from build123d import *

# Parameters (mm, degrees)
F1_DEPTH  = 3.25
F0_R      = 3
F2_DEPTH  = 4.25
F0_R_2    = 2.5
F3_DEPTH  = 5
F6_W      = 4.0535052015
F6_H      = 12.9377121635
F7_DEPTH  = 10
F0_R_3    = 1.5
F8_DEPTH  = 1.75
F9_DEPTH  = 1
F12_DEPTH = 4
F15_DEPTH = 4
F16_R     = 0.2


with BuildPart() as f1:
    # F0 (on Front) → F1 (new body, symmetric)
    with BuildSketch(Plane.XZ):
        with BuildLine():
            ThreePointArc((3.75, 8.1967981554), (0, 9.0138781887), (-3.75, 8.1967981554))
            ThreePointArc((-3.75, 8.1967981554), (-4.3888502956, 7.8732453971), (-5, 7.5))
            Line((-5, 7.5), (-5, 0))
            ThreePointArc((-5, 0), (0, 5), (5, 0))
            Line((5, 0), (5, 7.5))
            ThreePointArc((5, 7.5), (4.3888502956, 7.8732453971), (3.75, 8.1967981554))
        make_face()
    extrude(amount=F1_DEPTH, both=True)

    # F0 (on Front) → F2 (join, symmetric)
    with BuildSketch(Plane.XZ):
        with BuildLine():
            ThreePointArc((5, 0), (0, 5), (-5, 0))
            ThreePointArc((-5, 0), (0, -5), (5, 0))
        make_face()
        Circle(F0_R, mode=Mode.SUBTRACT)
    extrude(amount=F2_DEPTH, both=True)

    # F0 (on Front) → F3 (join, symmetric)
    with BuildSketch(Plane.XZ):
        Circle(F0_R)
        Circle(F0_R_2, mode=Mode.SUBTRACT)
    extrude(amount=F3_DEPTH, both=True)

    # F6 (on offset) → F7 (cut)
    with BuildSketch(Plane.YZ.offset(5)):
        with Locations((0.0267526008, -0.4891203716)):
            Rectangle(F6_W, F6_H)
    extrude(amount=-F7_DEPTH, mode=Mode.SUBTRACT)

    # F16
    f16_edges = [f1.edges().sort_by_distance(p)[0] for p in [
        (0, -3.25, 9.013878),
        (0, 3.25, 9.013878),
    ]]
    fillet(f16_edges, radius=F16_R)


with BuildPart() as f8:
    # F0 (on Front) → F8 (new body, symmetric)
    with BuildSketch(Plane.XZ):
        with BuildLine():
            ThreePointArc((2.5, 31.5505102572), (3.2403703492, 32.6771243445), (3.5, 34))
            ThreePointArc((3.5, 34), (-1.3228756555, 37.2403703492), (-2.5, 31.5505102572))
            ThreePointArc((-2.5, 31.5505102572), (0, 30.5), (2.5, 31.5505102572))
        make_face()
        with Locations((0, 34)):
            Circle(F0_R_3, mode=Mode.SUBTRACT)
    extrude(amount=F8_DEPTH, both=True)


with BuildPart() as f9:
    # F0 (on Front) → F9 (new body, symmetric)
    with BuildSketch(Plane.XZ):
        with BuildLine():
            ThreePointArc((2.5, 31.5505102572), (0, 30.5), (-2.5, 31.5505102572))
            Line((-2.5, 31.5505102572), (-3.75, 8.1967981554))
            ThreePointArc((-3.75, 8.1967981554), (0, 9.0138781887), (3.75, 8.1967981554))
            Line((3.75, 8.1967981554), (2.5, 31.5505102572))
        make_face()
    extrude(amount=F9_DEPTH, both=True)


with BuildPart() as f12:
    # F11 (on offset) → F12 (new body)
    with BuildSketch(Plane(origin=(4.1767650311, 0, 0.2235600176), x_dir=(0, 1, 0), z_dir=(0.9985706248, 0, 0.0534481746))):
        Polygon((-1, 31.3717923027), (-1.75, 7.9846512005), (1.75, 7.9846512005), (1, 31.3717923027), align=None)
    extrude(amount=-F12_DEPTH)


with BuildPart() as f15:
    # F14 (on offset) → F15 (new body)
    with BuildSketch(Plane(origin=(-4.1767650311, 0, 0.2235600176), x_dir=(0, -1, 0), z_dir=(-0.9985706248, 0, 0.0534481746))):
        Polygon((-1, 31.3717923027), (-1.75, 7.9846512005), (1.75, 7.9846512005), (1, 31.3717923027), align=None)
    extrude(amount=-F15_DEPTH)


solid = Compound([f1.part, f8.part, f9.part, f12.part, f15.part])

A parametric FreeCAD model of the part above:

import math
import FreeCAD as App
import Part
import Sketcher

V = App.Vector


def edges_at(feature, points):
    """Names of the edges that pass closest to the given points."""
    edges = feature.Shape.Edges
    near = lambda p: min(range(len(edges)), key=lambda i: edges[i].distToShape(Part.Vertex(*p))[0])
    return sorted({f"Edge{near(p) + 1}" for p in points})


def add_polygon(sketch, points):
    """Adds a closed chain of lines whose ends are joined by coincident constraints."""
    first, n = sketch.GeometryCount, len(points)
    for a, b in zip(points, points[1:] + points[:1]):
        sketch.addGeometry(Part.LineSegment(App.Vector(*a, 0), App.Vector(*b, 0)), False)
    for i in range(n):
        sketch.addConstraint(Sketcher.Constraint("Coincident", first + i, 2, first + (i + 1) % n, 1))

doc = App.newDocument("Part")
params = doc.addObject("Spreadsheet::Sheet", "Params")
for row, (alias, value) in enumerate([
    ("sketch1_radius", "5 mm"),
    ("sketch1_height", "7.5 mm"),
    ("pad1_length", "6.5 mm"),
    ("sketch2_diameter", "10 mm"),
    ("sketch2_diameter2", "6 mm"),
    ("pad2_length", "8.5 mm"),
    ("sketch3_diameter", "6 mm"),
    ("sketch3_diameter2", "5 mm"),
    ("pad3_length", "10 mm"),
    ("pocket1_length", "10 mm"),
    ("fillet_radius", "0.2 mm"),
    ("sketch5_diameter", "3 mm"),
    ("sketch5_radius", "3.5 mm"),
    ("pad4_length", "3.5 mm"),
    ("sketch6_radius", "3.5 mm"),
    ("pad5_length", "2 mm"),
    ("sketch7_width", "2 mm"),
    ("sketch7_width2", "3.5 mm"),
    ("pad6_length", "4 mm"),
    ("sketch8_width", "2 mm"),
    ("sketch8_width2", "3.5 mm"),
    ("pad7_length", "4 mm"),
], start=1):
    params.set(f"A{row}", alias)
    params.set(f"B{row}", "=" + value)
    params.setAlias(f"B{row}", alias)

body = doc.addObject("PartDesign::Body", "Body")

sketch1 = body.newObject("Sketcher::SketchObject", "Sketch")
sketch1.AttachmentSupport = (doc.getObject("XZ_Plane"), [""])
sketch1.MapMode = "FlatFace"
sketch1.addGeometry([
    Part.ArcOfCircle(Part.Circle(V(0, 0, 0), V(0, 0, 1), 9), math.radians(65), math.radians(115)),
    Part.ArcOfCircle(Part.Circle(V(0, 0, 0), V(0, 0, 1), 9), math.radians(114.58), math.radians(123.69)),
    Part.LineSegment(V(-5, 7.5, 0), V(-5, 0, 0)),
    Part.ArcOfCircle(Part.Circle(V(0, 0, 0), V(0, 0, 1), 5), math.radians(0), math.radians(180)),
    Part.LineSegment(V(5, 0, 0), V(5, 7.5, 0)),
    Part.ArcOfCircle(Part.Circle(V(0, 0, 0), V(0, 0, 1), 9), math.radians(56.31), math.radians(65.42)),
], False)
sketch1.addConstraint([
    Sketcher.Constraint("Tangent", 0, 2, 1, 1),
    Sketcher.Constraint("Coincident", 1, 2, 2, 1),
    Sketcher.Constraint("Tangent", 2, 2, 3, 2),
    Sketcher.Constraint("Tangent", 3, 1, 4, 1),
    Sketcher.Constraint("Coincident", 4, 2, 5, 1),
    Sketcher.Constraint("Tangent", 5, 2, 0, 1),
    Sketcher.Constraint("Vertical", 2),
    Sketcher.Constraint("Vertical", 4),
    Sketcher.Constraint("Coincident", 0, 3, -1, 1),
    Sketcher.Constraint("Coincident", 3, 3, -1, 1),
    Sketcher.Constraint("Equal", 0, 1),
    Sketcher.Constraint("Equal", 1, 5),
    Sketcher.Constraint("Horizontal", 0, 2, 5, 2),
    Sketcher.Constraint("Radius", 3, 5.0),
    Sketcher.Constraint("DistanceY", 2, 2, 2, 1, 7.5),
    Sketcher.Constraint("DistanceX", 0, 2, 5, 2, 7.5),
])
sketch1.setExpression("Constraints[13]", "Params.sketch1_radius")
sketch1.setExpression("Constraints[14]", "Params.sketch1_height")
pad1 = body.newObject("PartDesign::Pad", "Pad")
pad1.Profile = sketch1
pad1.setExpression("Length", "Params.pad1_length")
pad1.Midplane = True

sketch2 = body.newObject("Sketcher::SketchObject", "Sketch001")
sketch2.AttachmentSupport = (doc.getObject("XZ_Plane"), [""])
sketch2.MapMode = "FlatFace"
sketch2.addGeometry([
    Part.Circle(V(0, 0, 0), V(0, 0, 1), 5),
    Part.Circle(V(0, 0, 0), V(0, 0, 1), 3),
], False)
sketch2.addConstraint([
    Sketcher.Constraint("Coincident", 0, 3, -1, 1),
    Sketcher.Constraint("Coincident", 1, 3, -1, 1),
    Sketcher.Constraint("Diameter", 0, 10.0),
    Sketcher.Constraint("Diameter", 1, 6.0),
])
sketch2.setExpression("Constraints[2]", "Params.sketch2_diameter")
sketch2.setExpression("Constraints[3]", "Params.sketch2_diameter2")
pad2 = body.newObject("PartDesign::Pad", "Pad001")
pad2.Profile = sketch2
pad2.setExpression("Length", "Params.pad2_length")
pad2.Midplane = True

sketch3 = body.newObject("Sketcher::SketchObject", "Sketch002")
sketch3.AttachmentSupport = (doc.getObject("XZ_Plane"), [""])
sketch3.MapMode = "FlatFace"
sketch3.addGeometry([
    Part.Circle(V(0, 0, 0), V(0, 0, 1), 3),
    Part.Circle(V(0, 0, 0), V(0, 0, 1), 2.5),
], False)
sketch3.addConstraint([
    Sketcher.Constraint("Coincident", 0, 3, -1, 1),
    Sketcher.Constraint("Coincident", 1, 3, -1, 1),
    Sketcher.Constraint("Diameter", 0, 6.0),
    Sketcher.Constraint("Diameter", 1, 5.0),
])
sketch3.setExpression("Constraints[2]", "Params.sketch3_diameter")
sketch3.setExpression("Constraints[3]", "Params.sketch3_diameter2")
pad3 = body.newObject("PartDesign::Pad", "Pad002")
pad3.Profile = sketch3
pad3.setExpression("Length", "Params.pad3_length")
pad3.Midplane = True

sketch4 = body.newObject("Sketcher::SketchObject", "Sketch003")
sketch4.AttachmentSupport = (doc.getObject("YZ_Plane"), [""])
sketch4.MapMode = "FlatFace"
sketch4.AttachmentOffset = App.Placement(V(0, 0, 5), App.Rotation())
add_polygon(sketch4, [(-2, 6), (-2, -7), (2.1, -7), (2.1, 6)])
sketch4.addConstraint([
    Sketcher.Constraint("Vertical", 0),
    Sketcher.Constraint("Horizontal", 1),
    Sketcher.Constraint("Vertical", 2),
    Sketcher.Constraint("Horizontal", 3),
    Sketcher.Constraint("DistanceX", 0, 2, -1, 1, 2.0),
    Sketcher.Constraint("DistanceX", 1, 1, 1, 2, 4.053505),
    Sketcher.Constraint("DistanceY", 0, 2, 0, 1, 12.937712),
    Sketcher.Constraint("DistanceY", 0, 2, -1, 1, 6.957976),
])
pocket1 = body.newObject("PartDesign::Pocket", "Pocket")
pocket1.Profile = sketch4
pocket1.setExpression("Length", "Params.pocket1_length")
doc.recompute()

fillet = body.newObject("PartDesign::Fillet", "Fillet")
fillet.Base = (pocket1, edges_at(pocket1, [(0, -3.25, 9.014), (0, 3.25, 9.014)]))
fillet.setExpression("Radius", "Params.fillet_radius")
body2 = doc.addObject("PartDesign::Body", "Body001")

sketch5 = body2.newObject("Sketcher::SketchObject", "Sketch004")
sketch5.AttachmentSupport = (doc.getObject("XZ_Plane001"), [""])
sketch5.MapMode = "FlatFace"
sketch5.addGeometry([
    Part.ArcOfCircle(Part.Circle(V(0, 34, 0), V(0, 0, 1), 3.5), math.radians(-44), math.radians(0)),
    Part.ArcOfCircle(Part.Circle(V(0, 34, 0), V(0, 0, 1), 3.5), math.radians(0), math.radians(224)),
    Part.ArcOfCircle(Part.Circle(V(0, 34, 0), V(0, 0, 1), 3.5), math.radians(-136), math.radians(-44)),
    Part.Circle(V(0, 34, 0), V(0, 0, 1), 1.5),
], False)
sketch5.addConstraint([
    Sketcher.Constraint("Tangent", 0, 2, 1, 1),
    Sketcher.Constraint("Tangent", 1, 2, 2, 1),
    Sketcher.Constraint("Tangent", 2, 2, 0, 1),
    Sketcher.Constraint("Coincident", 3, 3, 0, 3),
    Sketcher.Constraint("Symmetric", 1, 2, 2, 2, -2),
    Sketcher.Constraint("Horizontal", 3, 3, 0, 2),
    Sketcher.Constraint("Diameter", 3, 3.0),
    Sketcher.Constraint("Radius", 0, 3.5),
    Sketcher.Constraint("DistanceY", -1, 1, 0, 3, 34.0),
    Sketcher.Constraint("DistanceX", 1, 2, 0, 2, 6.0),
])
sketch5.setExpression("Constraints[6]", "Params.sketch5_diameter")
sketch5.setExpression("Constraints[7]", "Params.sketch5_radius")
pad4 = body2.newObject("PartDesign::Pad", "Pad003")
pad4.Profile = sketch5
pad4.setExpression("Length", "Params.pad4_length")
pad4.Midplane = True
body3 = doc.addObject("PartDesign::Body", "Body002")

sketch6 = body3.newObject("Sketcher::SketchObject", "Sketch005")
sketch6.AttachmentSupport = (doc.getObject("XZ_Plane002"), [""])
sketch6.MapMode = "FlatFace"
sketch6.addGeometry([
    Part.ArcOfCircle(Part.Circle(V(0, 34, 0), V(0, 0, 1), 3.5), math.radians(-136), math.radians(-44)),
    Part.LineSegment(V(-2.5, 31.6, 0), V(-3.8, 8.2, 0)),
    Part.ArcOfCircle(Part.Circle(V(0, 0, 0), V(0, 0, 1), 9), math.radians(65), math.radians(115)),
    Part.LineSegment(V(3.8, 8.2, 0), V(2.5, 31.6, 0)),
], False)
sketch6.addConstraint([
    Sketcher.Constraint("Coincident", 0, 1, 1, 1),
    Sketcher.Constraint("Coincident", 1, 2, 2, 2),
    Sketcher.Constraint("Coincident", 2, 1, 3, 1),
    Sketcher.Constraint("Coincident", 3, 2, 0, 2),
    Sketcher.Constraint("Coincident", 2, 3, -1, 1),
    Sketcher.Constraint("Symmetric", 0, 1, 3, 2, -2),
    Sketcher.Constraint("Horizontal", 1, 2, 2, 1),
    Sketcher.Constraint("Radius", 0, 3.5),
    Sketcher.Constraint("DistanceY", -1, 1, 0, 3, 34.0),
    Sketcher.Constraint("DistanceX", 0, 1, 3, 2, 5.0),
    Sketcher.Constraint("DistanceX", 1, 2, 2, 1, 7.5),
    Sketcher.Constraint("Radius", 2, 9.013878),
])
sketch6.setExpression("Constraints[7]", "Params.sketch6_radius")
pad5 = body3.newObject("PartDesign::Pad", "Pad004")
pad5.Profile = sketch6
pad5.setExpression("Length", "Params.pad5_length")
pad5.Midplane = True
body4 = doc.addObject("PartDesign::Body", "Body003")

sketch7 = body4.newObject("Sketcher::SketchObject", "Sketch006")
sketch7.Placement = App.Placement(V(4.176765, 0, 0.22356), App.Rotation(V(0, 1, 0), V(-0.053448175, 0, 0.998570625), V(0.998570625, 0, 0.053448175), "ZXY"))
add_polygon(sketch7, [(-1, 31.4), (-1.8, 8), (1.8, 8), (1, 31.4)])
sketch7.addConstraint([
    Sketcher.Constraint("Horizontal", 1),
    Sketcher.Constraint("Horizontal", 3),
    Sketcher.Constraint("Equal", 0, 2),
    Sketcher.Constraint("DistanceX", 3, 2, 3, 1, 2.0),
    Sketcher.Constraint("DistanceX", 1, 1, 1, 2, 3.5),
    Sketcher.Constraint("DistanceX", -1, 1, 2, 2, 1.0),
    Sketcher.Constraint("DistanceY", -1, 1, 0, 2, 7.984651),
    Sketcher.Constraint("DistanceY", 1, 2, 2, 2, 23.387141),
])
sketch7.setExpression("Constraints[7]", "Params.sketch7_width")
sketch7.setExpression("Constraints[8]", "Params.sketch7_width2")
pad6 = body4.newObject("PartDesign::Pad", "Pad005")
pad6.Profile = sketch7
pad6.setExpression("Length", "Params.pad6_length")
pad6.Reversed = True
body5 = doc.addObject("PartDesign::Body", "Body004")

sketch8 = body5.newObject("Sketcher::SketchObject", "Sketch007")
sketch8.Placement = App.Placement(V(-4.176765, 0, 0.22356), App.Rotation(V(0, -1, 0), V(0.053448175, 0, 0.998570625), V(-0.998570625, 0, 0.053448175), "ZXY"))
add_polygon(sketch8, [(-1, 31.4), (-1.8, 8), (1.8, 8), (1, 31.4)])
sketch8.addConstraint([
    Sketcher.Constraint("Horizontal", 1),
    Sketcher.Constraint("Horizontal", 3),
    Sketcher.Constraint("Equal", 0, 2),
    Sketcher.Constraint("DistanceX", 3, 2, 3, 1, 2.0),
    Sketcher.Constraint("DistanceX", 1, 1, 1, 2, 3.5),
    Sketcher.Constraint("DistanceX", -1, 1, 2, 2, 1.0),
    Sketcher.Constraint("DistanceY", -1, 1, 0, 2, 7.984651),
    Sketcher.Constraint("DistanceY", 1, 2, 2, 2, 23.387141),
])
sketch8.setExpression("Constraints[7]", "Params.sketch8_width")
sketch8.setExpression("Constraints[8]", "Params.sketch8_width2")
pad7 = body5.newObject("PartDesign::Pad", "Pad006")
pad7.Profile = sketch8
pad7.setExpression("Length", "Params.pad7_length")
pad7.Reversed = True

doc.recompute()
